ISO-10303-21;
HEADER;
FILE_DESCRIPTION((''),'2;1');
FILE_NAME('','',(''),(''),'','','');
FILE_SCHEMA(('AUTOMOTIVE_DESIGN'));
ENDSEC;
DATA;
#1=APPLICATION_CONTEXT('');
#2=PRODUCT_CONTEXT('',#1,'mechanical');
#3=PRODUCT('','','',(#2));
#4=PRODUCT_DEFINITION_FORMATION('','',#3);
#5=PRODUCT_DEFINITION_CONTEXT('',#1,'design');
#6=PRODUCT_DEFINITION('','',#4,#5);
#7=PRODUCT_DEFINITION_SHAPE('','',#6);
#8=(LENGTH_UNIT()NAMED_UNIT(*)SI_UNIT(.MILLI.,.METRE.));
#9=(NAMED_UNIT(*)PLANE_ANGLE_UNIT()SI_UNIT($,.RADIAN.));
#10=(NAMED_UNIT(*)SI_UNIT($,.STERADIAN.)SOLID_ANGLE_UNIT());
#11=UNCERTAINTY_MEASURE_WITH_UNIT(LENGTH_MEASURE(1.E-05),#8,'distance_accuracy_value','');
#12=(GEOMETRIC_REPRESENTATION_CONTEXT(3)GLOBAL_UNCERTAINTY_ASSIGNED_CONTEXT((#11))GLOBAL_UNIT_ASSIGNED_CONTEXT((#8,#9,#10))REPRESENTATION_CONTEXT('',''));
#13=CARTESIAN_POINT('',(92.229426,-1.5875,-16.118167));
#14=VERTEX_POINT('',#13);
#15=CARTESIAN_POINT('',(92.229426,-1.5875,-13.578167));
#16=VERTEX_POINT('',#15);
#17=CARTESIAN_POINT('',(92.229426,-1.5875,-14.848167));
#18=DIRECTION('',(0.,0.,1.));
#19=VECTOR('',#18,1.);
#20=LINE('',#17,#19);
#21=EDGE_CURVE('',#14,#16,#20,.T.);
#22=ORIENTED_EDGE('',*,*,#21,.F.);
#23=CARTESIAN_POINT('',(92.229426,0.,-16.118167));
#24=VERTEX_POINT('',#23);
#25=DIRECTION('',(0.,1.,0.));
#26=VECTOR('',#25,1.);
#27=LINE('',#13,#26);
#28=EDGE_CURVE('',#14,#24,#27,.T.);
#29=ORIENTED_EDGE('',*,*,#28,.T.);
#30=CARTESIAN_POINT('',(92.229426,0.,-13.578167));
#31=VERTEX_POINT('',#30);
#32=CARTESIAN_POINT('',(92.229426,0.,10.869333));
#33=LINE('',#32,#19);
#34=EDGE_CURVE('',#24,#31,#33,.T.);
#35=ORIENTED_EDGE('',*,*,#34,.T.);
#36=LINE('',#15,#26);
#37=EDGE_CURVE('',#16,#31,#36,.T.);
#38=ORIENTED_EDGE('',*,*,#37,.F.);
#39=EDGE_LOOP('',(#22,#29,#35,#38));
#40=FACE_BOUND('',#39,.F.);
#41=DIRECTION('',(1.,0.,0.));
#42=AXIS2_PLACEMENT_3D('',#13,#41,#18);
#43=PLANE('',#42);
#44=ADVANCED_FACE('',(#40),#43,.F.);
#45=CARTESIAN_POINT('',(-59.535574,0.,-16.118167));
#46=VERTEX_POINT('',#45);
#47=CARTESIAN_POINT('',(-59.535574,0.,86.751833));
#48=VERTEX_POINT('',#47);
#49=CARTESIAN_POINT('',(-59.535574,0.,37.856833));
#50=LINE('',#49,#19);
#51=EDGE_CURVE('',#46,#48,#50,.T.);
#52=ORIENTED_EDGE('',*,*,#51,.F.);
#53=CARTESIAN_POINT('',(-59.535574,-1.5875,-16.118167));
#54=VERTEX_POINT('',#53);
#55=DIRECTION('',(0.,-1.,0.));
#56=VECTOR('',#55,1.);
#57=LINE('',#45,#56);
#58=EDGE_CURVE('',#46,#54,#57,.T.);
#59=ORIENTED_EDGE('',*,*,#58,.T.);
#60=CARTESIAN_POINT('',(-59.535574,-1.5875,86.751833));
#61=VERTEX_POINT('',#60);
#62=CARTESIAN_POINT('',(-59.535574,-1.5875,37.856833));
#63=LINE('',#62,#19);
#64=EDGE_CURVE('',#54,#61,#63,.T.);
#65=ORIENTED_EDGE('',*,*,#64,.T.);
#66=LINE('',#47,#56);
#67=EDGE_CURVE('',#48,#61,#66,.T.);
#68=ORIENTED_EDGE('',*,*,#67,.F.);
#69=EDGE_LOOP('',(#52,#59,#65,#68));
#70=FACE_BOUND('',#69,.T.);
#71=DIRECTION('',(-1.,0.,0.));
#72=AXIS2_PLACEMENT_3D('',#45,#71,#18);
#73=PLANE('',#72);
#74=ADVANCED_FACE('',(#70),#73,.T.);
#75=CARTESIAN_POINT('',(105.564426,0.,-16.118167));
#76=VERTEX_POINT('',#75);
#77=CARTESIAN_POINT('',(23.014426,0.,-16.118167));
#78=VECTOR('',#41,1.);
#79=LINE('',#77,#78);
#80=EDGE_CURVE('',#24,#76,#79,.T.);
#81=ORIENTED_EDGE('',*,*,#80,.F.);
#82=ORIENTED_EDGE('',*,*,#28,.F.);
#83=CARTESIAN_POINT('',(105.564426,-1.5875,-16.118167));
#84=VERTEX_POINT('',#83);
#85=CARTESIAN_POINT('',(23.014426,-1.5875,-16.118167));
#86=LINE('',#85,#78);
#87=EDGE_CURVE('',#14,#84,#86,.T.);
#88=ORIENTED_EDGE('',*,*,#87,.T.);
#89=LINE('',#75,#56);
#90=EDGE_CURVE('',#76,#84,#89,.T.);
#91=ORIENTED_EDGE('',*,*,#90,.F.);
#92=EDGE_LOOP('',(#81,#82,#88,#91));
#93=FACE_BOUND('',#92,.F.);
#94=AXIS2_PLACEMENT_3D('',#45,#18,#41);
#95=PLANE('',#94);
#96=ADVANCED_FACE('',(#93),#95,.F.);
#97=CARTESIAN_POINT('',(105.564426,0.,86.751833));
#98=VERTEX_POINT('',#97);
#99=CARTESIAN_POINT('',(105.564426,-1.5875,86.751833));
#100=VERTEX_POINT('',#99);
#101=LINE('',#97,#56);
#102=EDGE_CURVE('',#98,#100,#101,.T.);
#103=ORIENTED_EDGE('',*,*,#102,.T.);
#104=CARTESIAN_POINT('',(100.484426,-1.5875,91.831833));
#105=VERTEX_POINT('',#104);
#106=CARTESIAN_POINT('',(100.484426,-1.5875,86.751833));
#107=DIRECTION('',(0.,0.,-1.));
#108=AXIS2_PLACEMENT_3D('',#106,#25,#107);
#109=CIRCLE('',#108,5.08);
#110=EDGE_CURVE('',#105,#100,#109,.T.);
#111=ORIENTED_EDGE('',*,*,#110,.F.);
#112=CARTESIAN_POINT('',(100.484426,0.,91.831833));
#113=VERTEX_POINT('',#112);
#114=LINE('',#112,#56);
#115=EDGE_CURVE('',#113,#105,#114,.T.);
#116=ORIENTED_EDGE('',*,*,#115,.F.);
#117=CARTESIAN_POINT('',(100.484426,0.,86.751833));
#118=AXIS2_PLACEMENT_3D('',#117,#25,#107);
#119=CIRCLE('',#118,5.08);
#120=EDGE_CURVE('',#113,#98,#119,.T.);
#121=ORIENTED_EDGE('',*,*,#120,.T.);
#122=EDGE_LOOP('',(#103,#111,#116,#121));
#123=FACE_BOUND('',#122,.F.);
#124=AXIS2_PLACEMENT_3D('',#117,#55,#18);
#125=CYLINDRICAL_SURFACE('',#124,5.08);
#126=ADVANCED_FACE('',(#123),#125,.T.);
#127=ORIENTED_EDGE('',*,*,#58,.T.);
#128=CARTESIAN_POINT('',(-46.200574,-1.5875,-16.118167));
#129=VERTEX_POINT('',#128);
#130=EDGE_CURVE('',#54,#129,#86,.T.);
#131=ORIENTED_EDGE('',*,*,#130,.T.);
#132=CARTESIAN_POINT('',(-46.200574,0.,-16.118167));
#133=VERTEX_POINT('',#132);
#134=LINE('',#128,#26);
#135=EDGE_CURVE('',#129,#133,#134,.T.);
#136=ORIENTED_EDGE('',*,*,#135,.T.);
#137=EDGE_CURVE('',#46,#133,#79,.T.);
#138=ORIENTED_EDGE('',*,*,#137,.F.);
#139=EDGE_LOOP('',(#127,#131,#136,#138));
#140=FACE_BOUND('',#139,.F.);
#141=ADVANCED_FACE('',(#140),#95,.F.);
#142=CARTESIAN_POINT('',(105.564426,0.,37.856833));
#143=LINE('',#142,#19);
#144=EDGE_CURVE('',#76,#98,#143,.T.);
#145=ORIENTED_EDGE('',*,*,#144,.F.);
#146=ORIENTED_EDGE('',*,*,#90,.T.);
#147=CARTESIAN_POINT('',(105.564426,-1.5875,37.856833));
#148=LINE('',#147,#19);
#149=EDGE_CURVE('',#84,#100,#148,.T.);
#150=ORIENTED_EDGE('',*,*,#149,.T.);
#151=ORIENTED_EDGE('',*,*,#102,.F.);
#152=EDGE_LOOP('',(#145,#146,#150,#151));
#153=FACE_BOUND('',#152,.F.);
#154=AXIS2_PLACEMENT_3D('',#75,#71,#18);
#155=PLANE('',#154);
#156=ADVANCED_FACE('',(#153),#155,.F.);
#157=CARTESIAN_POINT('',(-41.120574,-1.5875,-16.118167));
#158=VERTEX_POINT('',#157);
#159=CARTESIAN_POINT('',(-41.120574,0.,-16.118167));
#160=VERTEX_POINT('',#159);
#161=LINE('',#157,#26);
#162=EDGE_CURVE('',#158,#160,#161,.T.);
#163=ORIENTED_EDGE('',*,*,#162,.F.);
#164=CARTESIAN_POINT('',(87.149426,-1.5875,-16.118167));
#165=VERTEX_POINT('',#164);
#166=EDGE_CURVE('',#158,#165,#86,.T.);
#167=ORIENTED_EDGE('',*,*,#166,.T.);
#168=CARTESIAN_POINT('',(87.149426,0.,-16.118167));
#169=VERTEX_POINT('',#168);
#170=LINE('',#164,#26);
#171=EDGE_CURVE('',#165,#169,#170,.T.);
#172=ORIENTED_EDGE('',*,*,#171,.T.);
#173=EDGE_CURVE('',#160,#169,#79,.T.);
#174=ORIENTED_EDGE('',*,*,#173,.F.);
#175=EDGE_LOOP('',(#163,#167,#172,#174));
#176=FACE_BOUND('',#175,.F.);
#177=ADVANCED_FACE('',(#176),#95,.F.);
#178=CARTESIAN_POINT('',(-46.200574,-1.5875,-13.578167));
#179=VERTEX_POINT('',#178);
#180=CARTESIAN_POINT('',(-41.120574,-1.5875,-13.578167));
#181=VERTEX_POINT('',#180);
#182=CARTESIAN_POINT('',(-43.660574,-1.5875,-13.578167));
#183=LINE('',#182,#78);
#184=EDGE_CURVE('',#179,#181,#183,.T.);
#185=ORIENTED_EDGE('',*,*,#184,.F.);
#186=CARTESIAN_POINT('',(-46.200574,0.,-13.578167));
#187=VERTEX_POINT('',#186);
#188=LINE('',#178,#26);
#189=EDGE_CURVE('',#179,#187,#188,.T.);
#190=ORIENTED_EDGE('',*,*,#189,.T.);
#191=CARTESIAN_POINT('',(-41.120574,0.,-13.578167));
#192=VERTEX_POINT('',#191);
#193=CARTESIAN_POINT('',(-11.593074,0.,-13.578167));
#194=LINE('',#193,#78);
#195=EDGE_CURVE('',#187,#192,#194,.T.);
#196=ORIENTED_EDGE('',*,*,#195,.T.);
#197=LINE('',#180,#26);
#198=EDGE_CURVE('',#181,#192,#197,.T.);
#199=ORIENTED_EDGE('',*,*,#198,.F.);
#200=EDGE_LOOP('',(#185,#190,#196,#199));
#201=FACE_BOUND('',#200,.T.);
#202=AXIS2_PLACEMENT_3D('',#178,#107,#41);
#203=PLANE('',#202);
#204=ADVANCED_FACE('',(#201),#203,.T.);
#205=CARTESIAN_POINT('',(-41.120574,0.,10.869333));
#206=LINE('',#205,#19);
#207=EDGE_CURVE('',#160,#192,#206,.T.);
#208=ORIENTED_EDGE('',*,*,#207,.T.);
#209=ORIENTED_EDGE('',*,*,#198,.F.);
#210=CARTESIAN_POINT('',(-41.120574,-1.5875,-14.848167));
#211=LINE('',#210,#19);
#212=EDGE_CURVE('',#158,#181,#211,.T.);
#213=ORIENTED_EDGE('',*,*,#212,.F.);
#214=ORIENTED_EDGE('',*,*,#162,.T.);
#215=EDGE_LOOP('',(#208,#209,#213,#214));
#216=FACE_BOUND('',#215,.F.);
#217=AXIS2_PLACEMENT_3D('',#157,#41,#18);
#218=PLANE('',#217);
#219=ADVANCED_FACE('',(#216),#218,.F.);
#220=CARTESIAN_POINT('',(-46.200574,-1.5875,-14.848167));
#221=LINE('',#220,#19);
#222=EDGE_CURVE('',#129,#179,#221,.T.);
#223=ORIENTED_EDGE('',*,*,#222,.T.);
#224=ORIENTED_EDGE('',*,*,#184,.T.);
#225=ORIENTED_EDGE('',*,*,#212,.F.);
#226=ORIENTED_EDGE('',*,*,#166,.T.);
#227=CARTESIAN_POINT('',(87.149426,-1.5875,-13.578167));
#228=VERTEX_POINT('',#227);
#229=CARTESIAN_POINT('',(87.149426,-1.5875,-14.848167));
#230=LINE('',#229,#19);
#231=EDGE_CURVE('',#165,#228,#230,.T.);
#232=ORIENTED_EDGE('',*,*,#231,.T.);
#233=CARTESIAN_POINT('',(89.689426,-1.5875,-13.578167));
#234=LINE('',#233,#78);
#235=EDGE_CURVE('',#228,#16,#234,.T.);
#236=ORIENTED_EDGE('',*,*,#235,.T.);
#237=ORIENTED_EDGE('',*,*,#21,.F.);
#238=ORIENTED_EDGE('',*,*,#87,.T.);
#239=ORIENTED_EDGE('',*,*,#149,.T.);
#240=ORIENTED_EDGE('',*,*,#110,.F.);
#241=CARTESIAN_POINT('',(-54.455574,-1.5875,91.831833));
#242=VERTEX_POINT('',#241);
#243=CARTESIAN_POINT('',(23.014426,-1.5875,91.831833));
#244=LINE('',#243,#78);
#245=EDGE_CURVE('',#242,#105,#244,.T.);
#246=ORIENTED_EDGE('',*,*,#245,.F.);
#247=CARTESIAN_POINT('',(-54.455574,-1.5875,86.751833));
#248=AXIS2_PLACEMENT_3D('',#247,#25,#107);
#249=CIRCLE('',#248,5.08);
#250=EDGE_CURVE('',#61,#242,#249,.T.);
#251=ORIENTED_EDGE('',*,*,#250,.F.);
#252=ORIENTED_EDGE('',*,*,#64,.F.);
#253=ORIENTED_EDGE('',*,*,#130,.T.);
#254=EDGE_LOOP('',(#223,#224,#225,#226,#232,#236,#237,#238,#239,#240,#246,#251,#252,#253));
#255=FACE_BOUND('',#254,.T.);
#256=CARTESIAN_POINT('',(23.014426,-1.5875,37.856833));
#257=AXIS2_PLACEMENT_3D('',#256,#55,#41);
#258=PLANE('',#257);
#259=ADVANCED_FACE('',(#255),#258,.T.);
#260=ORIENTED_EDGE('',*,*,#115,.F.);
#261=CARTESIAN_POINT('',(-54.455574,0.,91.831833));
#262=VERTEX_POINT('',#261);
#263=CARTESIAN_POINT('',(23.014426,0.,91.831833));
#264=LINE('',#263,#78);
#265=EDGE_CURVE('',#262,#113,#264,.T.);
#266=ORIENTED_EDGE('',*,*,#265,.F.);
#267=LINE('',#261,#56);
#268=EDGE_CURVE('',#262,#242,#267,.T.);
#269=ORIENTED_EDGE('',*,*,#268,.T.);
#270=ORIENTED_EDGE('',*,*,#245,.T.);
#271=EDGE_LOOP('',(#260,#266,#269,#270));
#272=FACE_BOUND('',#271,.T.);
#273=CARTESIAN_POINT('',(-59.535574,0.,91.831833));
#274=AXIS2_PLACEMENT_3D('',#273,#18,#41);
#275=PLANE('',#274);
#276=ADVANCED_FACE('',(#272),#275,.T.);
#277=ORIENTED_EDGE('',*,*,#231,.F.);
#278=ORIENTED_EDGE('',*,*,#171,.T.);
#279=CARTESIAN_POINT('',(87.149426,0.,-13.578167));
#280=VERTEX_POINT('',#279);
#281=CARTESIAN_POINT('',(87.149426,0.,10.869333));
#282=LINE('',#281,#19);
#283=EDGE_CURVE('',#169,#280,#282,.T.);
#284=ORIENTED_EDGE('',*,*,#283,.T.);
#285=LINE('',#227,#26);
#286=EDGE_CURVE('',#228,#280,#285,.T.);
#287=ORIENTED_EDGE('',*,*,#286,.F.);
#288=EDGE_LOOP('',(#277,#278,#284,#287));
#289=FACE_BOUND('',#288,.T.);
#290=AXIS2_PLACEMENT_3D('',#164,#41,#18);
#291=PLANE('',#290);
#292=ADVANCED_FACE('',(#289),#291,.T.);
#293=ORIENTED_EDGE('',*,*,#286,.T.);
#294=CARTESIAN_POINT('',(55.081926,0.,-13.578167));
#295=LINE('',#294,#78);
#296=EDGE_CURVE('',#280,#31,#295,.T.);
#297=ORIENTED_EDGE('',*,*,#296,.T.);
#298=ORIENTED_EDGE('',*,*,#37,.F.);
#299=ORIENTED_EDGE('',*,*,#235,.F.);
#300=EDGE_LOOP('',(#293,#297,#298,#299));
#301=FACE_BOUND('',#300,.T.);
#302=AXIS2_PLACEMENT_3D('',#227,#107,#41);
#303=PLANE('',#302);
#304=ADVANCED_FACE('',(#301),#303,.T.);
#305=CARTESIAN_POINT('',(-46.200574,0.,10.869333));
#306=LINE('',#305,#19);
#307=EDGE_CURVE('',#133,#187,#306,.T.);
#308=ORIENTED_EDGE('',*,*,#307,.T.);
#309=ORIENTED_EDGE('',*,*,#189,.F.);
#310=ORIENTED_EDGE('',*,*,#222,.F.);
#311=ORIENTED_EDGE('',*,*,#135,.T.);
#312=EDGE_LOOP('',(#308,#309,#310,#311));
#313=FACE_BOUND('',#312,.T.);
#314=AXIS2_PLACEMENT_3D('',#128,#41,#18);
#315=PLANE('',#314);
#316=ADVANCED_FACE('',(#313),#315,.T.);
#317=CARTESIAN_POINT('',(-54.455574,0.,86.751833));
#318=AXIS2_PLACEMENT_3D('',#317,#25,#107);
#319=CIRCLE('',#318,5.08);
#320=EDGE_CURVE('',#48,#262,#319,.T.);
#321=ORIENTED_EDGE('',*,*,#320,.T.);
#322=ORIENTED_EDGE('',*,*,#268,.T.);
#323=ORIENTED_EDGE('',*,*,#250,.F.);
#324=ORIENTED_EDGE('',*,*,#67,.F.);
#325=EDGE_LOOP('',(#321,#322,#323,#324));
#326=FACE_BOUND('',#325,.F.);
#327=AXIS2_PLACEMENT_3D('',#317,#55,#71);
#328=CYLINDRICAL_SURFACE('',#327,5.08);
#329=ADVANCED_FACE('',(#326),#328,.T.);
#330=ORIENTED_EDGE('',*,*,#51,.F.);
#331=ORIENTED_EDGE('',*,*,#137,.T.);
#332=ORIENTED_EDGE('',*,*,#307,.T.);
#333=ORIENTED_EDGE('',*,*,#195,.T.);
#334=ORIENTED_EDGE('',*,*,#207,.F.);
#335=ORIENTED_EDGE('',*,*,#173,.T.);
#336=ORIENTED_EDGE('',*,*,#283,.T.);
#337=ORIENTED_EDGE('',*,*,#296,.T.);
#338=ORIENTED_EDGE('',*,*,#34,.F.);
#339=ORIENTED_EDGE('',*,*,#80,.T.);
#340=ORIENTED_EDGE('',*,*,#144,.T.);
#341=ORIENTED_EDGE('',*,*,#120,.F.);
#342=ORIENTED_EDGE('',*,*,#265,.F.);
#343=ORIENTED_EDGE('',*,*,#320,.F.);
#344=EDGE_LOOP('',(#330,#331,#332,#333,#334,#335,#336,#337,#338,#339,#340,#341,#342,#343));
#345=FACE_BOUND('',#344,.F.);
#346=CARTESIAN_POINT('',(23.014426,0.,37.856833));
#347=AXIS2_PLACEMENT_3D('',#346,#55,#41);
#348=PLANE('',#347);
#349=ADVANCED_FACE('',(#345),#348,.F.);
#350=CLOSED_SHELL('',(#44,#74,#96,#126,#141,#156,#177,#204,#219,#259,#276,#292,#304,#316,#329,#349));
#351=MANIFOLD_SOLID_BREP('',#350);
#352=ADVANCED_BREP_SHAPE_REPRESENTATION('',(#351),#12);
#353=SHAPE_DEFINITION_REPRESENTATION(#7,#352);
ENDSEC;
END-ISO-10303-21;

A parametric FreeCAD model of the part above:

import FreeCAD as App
import Part
import Sketcher
Q = App.Units.Quantity


def edges_at(feature, points):
    """Names of the edges that pass closest to the given points."""
    edges = feature.Shape.Edges
    near = lambda p: min(range(len(edges)), key=lambda i: edges[i].distToShape(Part.Vertex(*p))[0])
    return sorted({f"Edge{near(p) + 1}" for p in points})

doc = App.newDocument("Part")
body = doc.addObject("PartDesign::Body", "Body")

sketch1 = doc.addObject("Sketcher::SketchObject", "Sketch")
body.addObject(sketch1)
sketch1.AttachmentSupport = (doc.XZ_Plane, [""])
sketch1.MapMode = "FlatFace"
sketch1.addGeometry([
    Part.LineSegment(App.Vector(-59.535574, 91.831833, 0), App.Vector(-59.535574, -16.118167, 0)),
    Part.LineSegment(App.Vector(-59.535574, -16.118167, 0), App.Vector(105.564426, -16.118167, 0)),
    Part.LineSegment(App.Vector(105.564426, -16.118167, 0), App.Vector(105.564426, 91.831833, 0)),
    Part.LineSegment(App.Vector(105.564426, 91.831833, 0), App.Vector(-59.535574, 91.831833, 0)),
], False)
sketch1.addConstraint([
    Sketcher.Constraint("Coincident", 0, 2, 1, 1),
    Sketcher.Constraint("Coincident", 1, 2, 2, 1),
    Sketcher.Constraint("Coincident", 2, 2, 3, 1),
    Sketcher.Constraint("Coincident", 3, 2, 0, 1),
    Sketcher.Constraint("Vertical", 0),
    Sketcher.Constraint("Horizontal", 1),
    Sketcher.Constraint("Vertical", 2),
    Sketcher.Constraint("Horizontal", 3),
    Sketcher.Constraint("DistanceX", 1, 1, 1, 2, Q("6.5 in")),
    Sketcher.Constraint("DistanceY", 0, 2, 0, 1, Q("4.25 in")),
    Sketcher.Constraint("DistanceX", 0, 2, -1, 1, 59.535574),
    Sketcher.Constraint("DistanceY", 0, 2, -1, 1, 16.118167),
])
pad1 = doc.addObject("PartDesign::Pad", "Pad")
body.addObject(pad1)
pad1.Profile = sketch1
pad1.Length = Q("0.0625 in")

sketch2 = doc.addObject("Sketcher::SketchObject", "Sketch001")
body.addObject(sketch2)
sketch2.AttachmentSupport = (doc.XZ_Plane, [""])
sketch2.MapMode = "FlatFace"
sketch2.AttachmentOffset = App.Placement(App.Vector(0, 0, 0.0625 * 25.4), App.Rotation())
sketch2.addGeometry([
    Part.LineSegment(App.Vector(-46.200574, -13.578167, 0), App.Vector(-46.200574, -16.118167, 0)),
    Part.LineSegment(App.Vector(-46.200574, -16.118167, 0), App.Vector(-41.120574, -16.118167, 0)),
    Part.LineSegment(App.Vector(-41.120574, -16.118167, 0), App.Vector(-41.120574, -13.578167, 0)),
    Part.LineSegment(App.Vector(-41.120574, -13.578167, 0), App.Vector(-46.200574, -13.578167, 0)),
    Part.LineSegment(App.Vector(87.149426, -13.578167, 0), App.Vector(87.149426, -16.118167, 0)),
    Part.LineSegment(App.Vector(87.149426, -16.118167, 0), App.Vector(92.229426, -16.118167, 0)),
    Part.LineSegment(App.Vector(92.229426, -16.118167, 0), App.Vector(92.229426, -13.578167, 0)),
    Part.LineSegment(App.Vector(92.229426, -13.578167, 0), App.Vector(87.149426, -13.578167, 0)),
], False)
sketch2.addConstraint([
    Sketcher.Constraint("Coincident", 0, 2, 1, 1),
    Sketcher.Constraint("Coincident", 1, 2, 2, 1),
    Sketcher.Constraint("Coincident", 2, 2, 3, 1),
    Sketcher.Constraint("Coincident", 3, 2, 0, 1),
    Sketcher.Constraint("Coincident", 4, 2, 5, 1),
    Sketcher.Constraint("Coincident", 5, 2, 6, 1),
    Sketcher.Constraint("Coincident", 6, 2, 7, 1),
    Sketcher.Constraint("Coincident", 7, 2, 4, 1),
    Sketcher.Constraint("Vertical", 0),
    Sketcher.Constraint("Horizontal", 1),
    Sketcher.Constraint("Vertical", 2),
    Sketcher.Constraint("Horizontal", 3),
    Sketcher.Constraint("Vertical", 4),
    Sketcher.Constraint("Horizontal", 5),
    Sketcher.Constraint("Vertical", 6),
    Sketcher.Constraint("Horizontal", 7),
    Sketcher.Constraint("Horizontal", 1, 2, 4, 2),
    Sketcher.Constraint("Horizontal", 3, 2, 6, 2),
    Sketcher.Constraint("Equal", 3, 5),
    Sketcher.Constraint("DistanceX", 1, 1, 1, 2, Q("0.2 in")),
    Sketcher.Constraint("DistanceY", 0, 2, 0, 1, Q("0.1 in")),
    Sketcher.Constraint("DistanceX", 1, 2, 4, 2, Q("5.05 in")),
    Sketcher.Constraint("DistanceX", 0, 2, -1, 1, 46.200574),
    Sketcher.Constraint("DistanceY", 0, 2, -1, 1, 16.118167),
])
pocket1 = doc.addObject("PartDesign::Pocket", "Pocket")
body.addObject(pocket1)
pocket1.Profile = sketch2
pocket1.Length = Q("1 in")
doc.recompute()

fillet = doc.addObject("PartDesign::Fillet", "Fillet")
body.addObject(fillet)
fillet.Base = (pocket1, edges_at(pocket1, [(105.564, -0.794, 91.832), (-59.536, -0.794, 91.832)]))
fillet.Radius = Q("0.2 in")

doc.recompute()
